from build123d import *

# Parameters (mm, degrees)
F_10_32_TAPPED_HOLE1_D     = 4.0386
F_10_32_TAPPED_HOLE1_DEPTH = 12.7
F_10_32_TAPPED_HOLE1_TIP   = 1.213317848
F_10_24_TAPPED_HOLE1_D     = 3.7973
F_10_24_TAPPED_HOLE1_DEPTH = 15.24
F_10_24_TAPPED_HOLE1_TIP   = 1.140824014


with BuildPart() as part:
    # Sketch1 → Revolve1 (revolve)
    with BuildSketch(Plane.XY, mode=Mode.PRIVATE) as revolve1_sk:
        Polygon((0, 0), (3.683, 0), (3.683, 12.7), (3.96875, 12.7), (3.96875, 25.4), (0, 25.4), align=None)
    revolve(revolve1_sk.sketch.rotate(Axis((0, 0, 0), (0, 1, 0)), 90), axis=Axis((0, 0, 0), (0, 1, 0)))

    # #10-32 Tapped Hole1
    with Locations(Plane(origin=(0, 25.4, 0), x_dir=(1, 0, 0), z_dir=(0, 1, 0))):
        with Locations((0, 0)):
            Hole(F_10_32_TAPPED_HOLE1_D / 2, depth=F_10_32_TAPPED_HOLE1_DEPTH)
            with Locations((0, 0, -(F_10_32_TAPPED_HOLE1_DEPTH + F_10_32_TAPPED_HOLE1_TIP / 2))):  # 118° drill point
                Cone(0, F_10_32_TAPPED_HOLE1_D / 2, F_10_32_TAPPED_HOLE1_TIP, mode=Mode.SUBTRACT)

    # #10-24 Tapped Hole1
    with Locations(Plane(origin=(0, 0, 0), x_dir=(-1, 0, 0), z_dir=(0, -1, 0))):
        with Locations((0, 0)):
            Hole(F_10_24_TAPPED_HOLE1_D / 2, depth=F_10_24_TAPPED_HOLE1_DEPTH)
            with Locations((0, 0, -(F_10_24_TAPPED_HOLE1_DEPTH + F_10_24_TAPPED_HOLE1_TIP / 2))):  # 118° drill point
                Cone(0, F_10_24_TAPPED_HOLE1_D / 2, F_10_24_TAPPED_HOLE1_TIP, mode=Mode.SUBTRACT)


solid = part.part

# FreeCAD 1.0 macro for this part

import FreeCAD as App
import Part
import Sketcher
from FreeCAD import Vector
Q = App.Units.Quantity


def add_polygon(sketch, points):
    """Adds a closed chain of lines whose ends are joined by coincident constraints."""
    first, n = sketch.GeometryCount, len(points)
    for a, b in zip(points, points[1:] + points[:1]):
        sketch.addGeometry(Part.LineSegment(App.Vector(*a, 0), App.Vector(*b, 0)), False)
    for i in range(n):
        sketch.addConstraint(Sketcher.Constraint("Coincident", first + i, 2, first + (i + 1) % n, 1))

doc = App.newDocument("Part")
params = doc.addObject("Spreadsheet::Sheet", "Params")
for row, (alias, value) in enumerate([
    ("sketch1_height", "1 in"),
    ("sketch1_width", "0.145 in"),
    ("sketch1_width2", "0.15625 in"),
    ("revolution_angle", "360 deg"),
    ("sketch2_diameter", "0.159 in"),
    ("hole_diameter", "0.159 in"),
    ("hole_depth", "0.5 in"),
    ("hole2_diameter", "0.1495 in"),
    ("hole2_depth", "0.6 in"),
], start=1):
    params.set(f"A{row}", alias)
    params.set(f"B{row}", "=" + value)
    params.setAlias(f"B{row}", alias)

body = doc.addObject("PartDesign::Body", "Body")

# Sketch on XY plane
sketch1 = body.newObject("Sketcher::SketchObject", "Sketch")
sketch1.AttachmentSupport = (doc.getObject("XY_Plane"), [""])
sketch1.MapMode = "FlatFace"
add_polygon(sketch1, [(0, 0), (3.683, 0), (3.683, 12.7), (3.96875, 12.7), (3.96875, 25.4), (0, 25.4)])  # lines 0-5
sketch1.addConstraint([
    Sketcher.Constraint("Horizontal", 0),
    Sketcher.Constraint("Vertical", 1),
    Sketcher.Constraint("Horizontal", 2),
    Sketcher.Constraint("Vertical", 3),
    Sketcher.Constraint("Horizontal", 4),
    Sketcher.Constraint("Vertical", 5),
    Sketcher.Constraint("Coincident", 5, 2, -1, 1),
    Sketcher.Constraint("Equal", 1, 3),
    Sketcher.Constraint("DistanceY", 5, 2, 5, 1, Q("1 in")),
    Sketcher.Constraint("DistanceX", 0, 1, 0, 2, Q("0.145 in")),
    Sketcher.Constraint("DistanceX", 4, 2, 4, 1, Q("0.15625 in")),
])
sketch1.setExpression("Constraints[14]", "Params.sketch1_height")
sketch1.setExpression("Constraints[15]", "Params.sketch1_width")
sketch1.setExpression("Constraints[16]", "Params.sketch1_width2")
revolution = body.newObject("PartDesign::Revolution", "Revolution")
revolution.Profile = sketch1
revolution.ReferenceAxis = (sketch1, ["V_Axis"])
revolution.setExpression("Angle", "Params.revolution_angle")

# Sketch on XZ plane
sketch2 = body.newObject("Sketcher::SketchObject", "Sketch001")
sketch2.AttachmentSupport = (doc.getObject("XZ_Plane"), [""])
sketch2.MapMode = "FlatFace"
sketch2.AttachmentOffset = App.Placement(Vector(0, 0, -1 * 25.4), App.Rotation())
sketch2.addGeometry(Part.Circle(Vector(0, 0, 0), Vector(0, 0, 1), 2.0193), False)
sketch2.addConstraint([
    Sketcher.Constraint("Coincident", 0, 3, -1, 1),
    Sketcher.Constraint("Diameter", 0, Q("0.159 in")),
])
sketch2.setExpression("Constraints[1]", "Params.sketch2_diameter")
doc.recompute()
hole = body.newObject("PartDesign::Hole", "Hole")
hole.Profile = sketch2
hole.ThreadType = "None"
hole.setExpression("Diameter", "Params.hole_diameter")
hole.DepthType = "Dimension"
hole.setExpression("Depth", "Params.hole_depth")
hole.DrillPoint = "Angled"
hole.DrillPointAngle = 118
hole.Reversed = True

# Sketch on XZ plane
sketch3 = body.newObject("Sketcher::SketchObject", "Sketch002")
sketch3.AttachmentSupport = (doc.getObject("XZ_Plane"), [""])
sketch3.MapMode = "FlatFace"
sketch3.addGeometry(Part.Circle(Vector(0, 0, 0), Vector(0, 0, 1), 1.89865), False)
sketch3.addConstraint([
    Sketcher.Constraint("Coincident", 0, 3, -1, 1),
    Sketcher.Constraint("Diameter", 0, Q("0.1495 in")),
])
doc.recompute()
hole2 = body.newObject("PartDesign::Hole", "Hole001")
hole2.Profile = sketch3
hole2.ThreadType = "None"
hole2.setExpression("Diameter", "Params.hole2_diameter")
hole2.DepthType = "Dimension"
hole2.setExpression("Depth", "Params.hole2_depth")
hole2.DrillPoint = "Angled"
hole2.DrillPointAngle = 118

doc.recompute()
